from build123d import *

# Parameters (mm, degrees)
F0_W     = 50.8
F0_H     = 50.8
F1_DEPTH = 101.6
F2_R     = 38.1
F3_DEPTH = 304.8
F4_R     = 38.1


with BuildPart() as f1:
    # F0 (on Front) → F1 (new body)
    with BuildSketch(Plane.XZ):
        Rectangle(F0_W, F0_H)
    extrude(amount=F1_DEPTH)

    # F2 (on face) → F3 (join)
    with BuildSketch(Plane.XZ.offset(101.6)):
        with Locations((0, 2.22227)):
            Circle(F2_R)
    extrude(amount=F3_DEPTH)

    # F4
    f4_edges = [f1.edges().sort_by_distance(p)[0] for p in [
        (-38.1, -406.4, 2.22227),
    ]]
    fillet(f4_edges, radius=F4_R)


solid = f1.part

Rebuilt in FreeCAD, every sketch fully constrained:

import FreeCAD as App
import Part
import Sketcher
Q = App.Units.Quantity


def edges_at(feature, points):
    """Names of the edges that pass closest to the given points."""
    edges = feature.Shape.Edges
    near = lambda p: min(range(len(edges)), key=lambda i: edges[i].distToShape(Part.Vertex(*p))[0])
    return sorted({f"Edge{near(p) + 1}" for p in points})


def add_polygon(sketch, points):
    """Adds a closed chain of lines whose ends are joined by coincident constraints."""
    first, n = sketch.GeometryCount, len(points)
    for a, b in zip(points, points[1:] + points[:1]):
        sketch.addGeometry(Part.LineSegment(App.Vector(*a, 0), App.Vector(*b, 0)), False)
    for i in range(n):
        sketch.addConstraint(Sketcher.Constraint("Coincident", first + i, 2, first + (i + 1) % n, 1))

doc = App.newDocument("Part")
body = doc.addObject("PartDesign::Body", "Body")

sketch1 = body.newObject("Sketcher::SketchObject", "Sketch")
sketch1.AttachmentSupport = (doc.getObject("XZ_Plane"), [""])
sketch1.MapMode = "FlatFace"
add_polygon(sketch1, [(-25, 25), (-25, -25), (25, -25), (25, 25)])
sketch1.addConstraint(Sketcher.Constraint("Vertical", 0))
sketch1.addConstraint(Sketcher.Constraint("Horizontal", 1))
sketch1.addConstraint(Sketcher.Constraint("Vertical", 2))
sketch1.addConstraint(Sketcher.Constraint("Horizontal", 3))
sketch1.addConstraint(Sketcher.Constraint("Symmetric", 0, 2, 2, 2, -1, 1))
sketch1.addConstraint(Sketcher.Constraint("Equal", 3, 0))
sketch1.addConstraint(Sketcher.Constraint("DistanceX", 1, 1, 1, 2, Q("2 in")))
pad1 = body.newObject("PartDesign::Pad", "Pad")
pad1.Profile = sketch1
pad1.Length = Q("4 in")

sketch2 = body.newObject("Sketcher::SketchObject", "Sketch001")
sketch2.AttachmentSupport = (doc.getObject("XZ_Plane"), [""])
sketch2.MapMode = "FlatFace"
sketch2.AttachmentOffset = App.Placement(App.Vector(0, 0, 4 * 25.4), App.Rotation())
sketch2.addGeometry(Part.Circle(App.Vector(0, 2, 0), App.Vector(0, 0, 1), 38), False)
sketch2.addConstraint(Sketcher.Constraint("PointOnObject", 0, 3, -2))
sketch2.addConstraint(Sketcher.Constraint("Diameter", 0, Q("3 in")))
sketch2.addConstraint(Sketcher.Constraint("DistanceY", -1, 1, 0, 3, Q("2.22227 mm")))
pad2 = body.newObject("PartDesign::Pad", "Pad001")
pad2.Profile = sketch2
pad2.Length = Q("12 in")
doc.recompute()

fillet = body.newObject("PartDesign::Fillet", "Fillet")
fillet.Base = (pad2, edges_at(pad2, [(-38.1, -406.4, 2.222)]))
fillet.Radius = Q("1.5 in")

doc.recompute()
